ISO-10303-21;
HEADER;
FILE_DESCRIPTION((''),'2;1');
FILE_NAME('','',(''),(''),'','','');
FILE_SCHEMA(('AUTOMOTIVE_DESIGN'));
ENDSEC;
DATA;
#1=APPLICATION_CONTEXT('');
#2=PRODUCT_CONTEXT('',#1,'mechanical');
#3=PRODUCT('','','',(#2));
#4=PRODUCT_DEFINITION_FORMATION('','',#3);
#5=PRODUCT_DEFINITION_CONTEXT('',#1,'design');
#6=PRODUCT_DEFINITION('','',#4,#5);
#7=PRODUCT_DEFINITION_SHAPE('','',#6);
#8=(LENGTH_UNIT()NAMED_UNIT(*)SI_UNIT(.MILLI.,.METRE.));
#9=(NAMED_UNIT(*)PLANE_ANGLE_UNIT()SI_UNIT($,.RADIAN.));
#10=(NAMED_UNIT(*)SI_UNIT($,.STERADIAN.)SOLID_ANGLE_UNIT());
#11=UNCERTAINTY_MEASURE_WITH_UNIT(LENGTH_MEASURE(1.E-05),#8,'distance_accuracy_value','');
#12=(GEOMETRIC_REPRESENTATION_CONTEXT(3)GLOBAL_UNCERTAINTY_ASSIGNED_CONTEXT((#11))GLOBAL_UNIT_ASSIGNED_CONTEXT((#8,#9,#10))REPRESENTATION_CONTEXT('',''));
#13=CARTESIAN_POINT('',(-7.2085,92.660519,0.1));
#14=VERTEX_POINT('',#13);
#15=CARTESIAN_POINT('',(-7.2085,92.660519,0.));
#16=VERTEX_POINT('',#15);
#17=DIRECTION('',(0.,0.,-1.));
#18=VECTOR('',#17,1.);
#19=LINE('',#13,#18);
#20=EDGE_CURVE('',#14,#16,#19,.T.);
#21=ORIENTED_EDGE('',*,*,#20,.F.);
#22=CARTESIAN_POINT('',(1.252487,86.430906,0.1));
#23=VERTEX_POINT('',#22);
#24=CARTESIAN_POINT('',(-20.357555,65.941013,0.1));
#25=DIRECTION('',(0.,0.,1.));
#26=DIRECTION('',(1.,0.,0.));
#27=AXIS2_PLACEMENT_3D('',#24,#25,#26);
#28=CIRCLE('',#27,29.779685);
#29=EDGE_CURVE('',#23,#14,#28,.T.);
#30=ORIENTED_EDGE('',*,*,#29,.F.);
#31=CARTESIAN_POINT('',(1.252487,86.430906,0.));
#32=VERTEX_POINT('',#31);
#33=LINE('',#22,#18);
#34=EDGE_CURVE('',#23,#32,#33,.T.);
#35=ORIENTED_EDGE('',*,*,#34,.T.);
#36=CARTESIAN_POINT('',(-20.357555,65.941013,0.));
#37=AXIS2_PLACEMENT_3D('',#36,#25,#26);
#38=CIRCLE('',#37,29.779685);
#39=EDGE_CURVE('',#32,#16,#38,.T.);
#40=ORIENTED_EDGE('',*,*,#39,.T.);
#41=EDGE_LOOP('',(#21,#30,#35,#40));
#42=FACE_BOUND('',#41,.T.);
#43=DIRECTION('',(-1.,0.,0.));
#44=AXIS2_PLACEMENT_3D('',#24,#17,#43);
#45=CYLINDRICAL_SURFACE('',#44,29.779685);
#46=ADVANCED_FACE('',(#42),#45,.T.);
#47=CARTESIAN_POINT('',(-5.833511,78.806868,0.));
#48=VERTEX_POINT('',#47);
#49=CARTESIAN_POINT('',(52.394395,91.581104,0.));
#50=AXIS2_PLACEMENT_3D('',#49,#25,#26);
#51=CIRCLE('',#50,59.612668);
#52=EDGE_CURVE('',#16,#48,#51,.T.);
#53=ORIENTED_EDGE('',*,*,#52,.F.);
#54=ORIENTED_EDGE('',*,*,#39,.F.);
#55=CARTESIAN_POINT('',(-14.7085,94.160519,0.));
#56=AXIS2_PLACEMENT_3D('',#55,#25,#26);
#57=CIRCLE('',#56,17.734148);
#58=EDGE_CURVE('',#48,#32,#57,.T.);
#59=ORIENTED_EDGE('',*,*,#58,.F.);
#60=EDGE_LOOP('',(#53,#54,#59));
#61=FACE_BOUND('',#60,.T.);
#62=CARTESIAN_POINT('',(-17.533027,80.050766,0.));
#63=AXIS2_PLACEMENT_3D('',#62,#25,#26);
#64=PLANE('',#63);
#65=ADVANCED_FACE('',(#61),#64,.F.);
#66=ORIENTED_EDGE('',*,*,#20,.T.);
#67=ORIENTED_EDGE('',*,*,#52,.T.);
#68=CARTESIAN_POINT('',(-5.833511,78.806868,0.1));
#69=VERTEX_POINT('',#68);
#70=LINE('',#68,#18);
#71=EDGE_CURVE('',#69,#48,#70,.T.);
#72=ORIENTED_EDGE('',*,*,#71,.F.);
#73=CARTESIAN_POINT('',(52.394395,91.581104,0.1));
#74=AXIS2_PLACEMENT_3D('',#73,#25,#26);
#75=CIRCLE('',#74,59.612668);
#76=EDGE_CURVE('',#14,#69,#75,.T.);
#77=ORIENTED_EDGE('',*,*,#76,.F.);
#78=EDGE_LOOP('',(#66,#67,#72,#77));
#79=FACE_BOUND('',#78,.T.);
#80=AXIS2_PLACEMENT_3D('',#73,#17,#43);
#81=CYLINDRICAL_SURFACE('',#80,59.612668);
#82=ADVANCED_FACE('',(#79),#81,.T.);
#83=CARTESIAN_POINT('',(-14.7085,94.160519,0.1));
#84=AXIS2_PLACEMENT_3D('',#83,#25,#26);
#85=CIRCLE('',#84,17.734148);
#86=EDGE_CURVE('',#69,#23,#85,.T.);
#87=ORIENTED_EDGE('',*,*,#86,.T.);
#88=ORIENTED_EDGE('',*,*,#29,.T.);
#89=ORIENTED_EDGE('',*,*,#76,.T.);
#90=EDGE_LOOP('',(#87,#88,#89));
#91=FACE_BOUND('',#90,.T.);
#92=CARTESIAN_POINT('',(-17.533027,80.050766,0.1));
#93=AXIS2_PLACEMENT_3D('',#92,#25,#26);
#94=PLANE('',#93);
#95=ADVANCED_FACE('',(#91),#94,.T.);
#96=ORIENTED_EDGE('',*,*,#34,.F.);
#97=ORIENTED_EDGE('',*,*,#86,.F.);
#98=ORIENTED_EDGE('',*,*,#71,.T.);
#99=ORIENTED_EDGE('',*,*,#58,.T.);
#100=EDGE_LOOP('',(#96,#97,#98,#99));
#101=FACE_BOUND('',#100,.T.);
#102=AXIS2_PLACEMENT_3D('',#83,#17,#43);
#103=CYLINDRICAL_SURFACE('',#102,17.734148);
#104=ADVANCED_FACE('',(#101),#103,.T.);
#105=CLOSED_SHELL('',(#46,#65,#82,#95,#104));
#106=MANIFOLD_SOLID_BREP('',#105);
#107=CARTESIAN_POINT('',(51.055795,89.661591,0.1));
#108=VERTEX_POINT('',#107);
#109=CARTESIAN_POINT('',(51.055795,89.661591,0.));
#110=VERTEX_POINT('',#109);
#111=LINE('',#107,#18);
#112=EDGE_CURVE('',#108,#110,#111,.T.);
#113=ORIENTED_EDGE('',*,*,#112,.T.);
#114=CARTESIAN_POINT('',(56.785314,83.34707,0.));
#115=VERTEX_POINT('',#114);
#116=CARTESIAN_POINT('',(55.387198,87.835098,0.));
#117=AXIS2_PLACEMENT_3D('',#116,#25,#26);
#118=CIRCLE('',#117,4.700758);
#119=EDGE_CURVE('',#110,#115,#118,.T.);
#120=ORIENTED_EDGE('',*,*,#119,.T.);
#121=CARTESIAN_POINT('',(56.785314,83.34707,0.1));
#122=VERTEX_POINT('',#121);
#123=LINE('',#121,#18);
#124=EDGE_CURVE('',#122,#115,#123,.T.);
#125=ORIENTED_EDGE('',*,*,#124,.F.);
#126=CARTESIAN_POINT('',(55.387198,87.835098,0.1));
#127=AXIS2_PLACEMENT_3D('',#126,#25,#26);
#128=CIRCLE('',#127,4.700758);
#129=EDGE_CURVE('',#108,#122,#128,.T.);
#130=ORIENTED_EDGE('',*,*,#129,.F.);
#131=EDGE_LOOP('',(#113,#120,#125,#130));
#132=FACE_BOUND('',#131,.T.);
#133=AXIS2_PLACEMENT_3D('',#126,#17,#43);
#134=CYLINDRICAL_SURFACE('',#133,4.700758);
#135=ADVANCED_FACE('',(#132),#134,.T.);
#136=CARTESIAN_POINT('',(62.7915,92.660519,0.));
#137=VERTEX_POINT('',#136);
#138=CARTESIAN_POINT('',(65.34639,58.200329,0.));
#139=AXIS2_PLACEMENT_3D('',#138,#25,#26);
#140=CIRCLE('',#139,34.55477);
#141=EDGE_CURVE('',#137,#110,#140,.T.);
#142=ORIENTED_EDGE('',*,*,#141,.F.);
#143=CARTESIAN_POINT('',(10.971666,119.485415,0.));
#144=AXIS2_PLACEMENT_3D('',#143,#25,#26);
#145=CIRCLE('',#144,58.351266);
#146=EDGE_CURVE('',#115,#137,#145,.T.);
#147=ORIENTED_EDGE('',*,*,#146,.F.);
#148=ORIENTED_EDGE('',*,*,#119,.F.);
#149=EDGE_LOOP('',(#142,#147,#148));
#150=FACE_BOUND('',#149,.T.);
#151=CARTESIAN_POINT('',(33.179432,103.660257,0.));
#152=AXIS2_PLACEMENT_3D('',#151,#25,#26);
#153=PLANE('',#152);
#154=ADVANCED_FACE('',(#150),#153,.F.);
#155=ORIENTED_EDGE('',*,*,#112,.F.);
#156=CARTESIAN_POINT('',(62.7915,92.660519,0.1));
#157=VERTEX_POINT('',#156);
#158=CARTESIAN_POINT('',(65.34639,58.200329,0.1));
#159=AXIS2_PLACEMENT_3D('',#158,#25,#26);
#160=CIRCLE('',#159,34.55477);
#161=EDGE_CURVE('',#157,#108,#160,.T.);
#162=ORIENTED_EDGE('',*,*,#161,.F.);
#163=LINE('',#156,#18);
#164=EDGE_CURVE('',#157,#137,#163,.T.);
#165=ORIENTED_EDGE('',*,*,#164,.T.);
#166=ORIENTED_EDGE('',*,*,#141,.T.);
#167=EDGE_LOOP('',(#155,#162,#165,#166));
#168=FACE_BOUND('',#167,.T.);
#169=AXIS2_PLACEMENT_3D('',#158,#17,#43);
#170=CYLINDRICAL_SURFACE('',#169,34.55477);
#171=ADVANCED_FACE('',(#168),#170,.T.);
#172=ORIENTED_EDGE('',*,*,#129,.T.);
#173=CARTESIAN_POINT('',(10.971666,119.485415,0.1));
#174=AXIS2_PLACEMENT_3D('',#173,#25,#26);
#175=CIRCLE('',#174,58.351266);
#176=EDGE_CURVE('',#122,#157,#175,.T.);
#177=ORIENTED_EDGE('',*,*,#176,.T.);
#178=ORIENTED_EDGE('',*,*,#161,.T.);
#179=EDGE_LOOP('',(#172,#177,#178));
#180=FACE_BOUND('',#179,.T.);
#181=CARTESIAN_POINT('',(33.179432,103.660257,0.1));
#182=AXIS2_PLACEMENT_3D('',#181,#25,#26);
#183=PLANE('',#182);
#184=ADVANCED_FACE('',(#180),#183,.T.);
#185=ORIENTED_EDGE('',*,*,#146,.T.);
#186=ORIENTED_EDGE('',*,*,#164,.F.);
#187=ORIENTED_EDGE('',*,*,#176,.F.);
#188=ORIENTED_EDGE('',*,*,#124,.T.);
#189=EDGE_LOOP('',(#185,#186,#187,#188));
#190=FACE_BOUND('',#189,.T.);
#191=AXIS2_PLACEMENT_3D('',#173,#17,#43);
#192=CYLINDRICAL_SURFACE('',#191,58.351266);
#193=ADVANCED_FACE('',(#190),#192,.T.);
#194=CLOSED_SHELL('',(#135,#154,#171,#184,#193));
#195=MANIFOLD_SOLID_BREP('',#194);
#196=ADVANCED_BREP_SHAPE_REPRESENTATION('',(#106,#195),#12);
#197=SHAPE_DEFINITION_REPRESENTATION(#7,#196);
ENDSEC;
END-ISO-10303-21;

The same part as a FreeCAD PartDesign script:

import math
import FreeCAD as App
import Part
import Sketcher
Q = App.Units.Quantity

doc = App.newDocument("Part")
body = doc.addObject("PartDesign::Body", "Body")

sketch1 = body.newObject("Sketcher::SketchObject", "Sketch")
sketch1.AttachmentSupport = (doc.getObject("XY_Plane"), [""])
sketch1.MapMode = "FlatFace"
sketch1.addGeometry([
    Part.ArcOfCircle(Part.Circle(App.Vector(11, 119.5, 0), App.Vector(0, 0, 1), 58.4), math.radians(-38.27), math.radians(-27.37)),
    Part.ArcOfCircle(Part.Circle(App.Vector(65.3, 58.2, 0), App.Vector(0, 0, 1), 34.6), math.radians(94), math.radians(114)),
    Part.ArcOfCircle(Part.Circle(App.Vector(55.4, 87.8, 0), App.Vector(0, 0, 1), 4.7), math.radians(157), math.radians(287)),
], False)
sketch1.addConstraint([
    Sketcher.Constraint("Coincident", 0, 2, 1, 1),
    Sketcher.Constraint("Coincident", 1, 2, 2, 1),
    Sketcher.Constraint("Coincident", 2, 2, 0, 1),
    Sketcher.Constraint("Radius", 1, Q("34.55477 mm")),
    Sketcher.Constraint("Radius", 0, Q("58.351266 mm")),
    Sketcher.Constraint("Radius", 2, Q("4.700758 mm")),
    Sketcher.Constraint("DistanceY", -1, 1, 2, 3, Q("87.835098 mm")),
    Sketcher.Constraint("DistanceX", -1, 1, 0, 2, Q("62.7915 mm")),
    Sketcher.Constraint("DistanceX", -1, 1, 1, 3, Q("65.34639 mm")),
    Sketcher.Constraint("DistanceY", -1, 1, 1, 3, Q("58.200329 mm")),
    Sketcher.Constraint("DistanceY", -1, 1, 1, 2, Q("89.661591 mm")),
    Sketcher.Constraint("DistanceY", -1, 1, 2, 2, Q("83.34707 mm")),
])
pad1 = body.newObject("PartDesign::Pad", "Pad")
pad1.Profile = sketch1
pad1.Length = 0.1
body2 = doc.addObject("PartDesign::Body", "Body001")

sketch2 = body2.newObject("Sketcher::SketchObject", "Sketch001")
sketch2.AttachmentSupport = (doc.getObject("XY_Plane001"), [""])
sketch2.MapMode = "FlatFace"
sketch2.addGeometry([
    Part.ArcOfCircle(Part.Circle(App.Vector(-20, 66, 0), App.Vector(0, 0, 1), 30), math.radians(43), math.radians(64)),
    Part.ArcOfCircle(Part.Circle(App.Vector(52, 92, 0), App.Vector(0, 0, 1), 60), math.radians(178.96), math.radians(192.37)),
    Part.ArcOfCircle(Part.Circle(App.Vector(-15, 94, 0), App.Vector(0, 0, 1), 18), math.radians(-60), math.radians(-26)),
], False)
sketch2.addConstraint([
    Sketcher.Constraint("Coincident", 0, 2, 1, 1),
    Sketcher.Constraint("Coincident", 1, 2, 2, 1),
    Sketcher.Constraint("Coincident", 2, 2, 0, 1),
    Sketcher.Constraint("DistanceX", 2, 3, 0, 2, Q("7.5 mm")),
    Sketcher.Constraint("DistanceY", 0, 2, 2, 3, Q("1.5 mm")),
    Sketcher.Constraint("Radius", 1, Q("59.612668 mm")),
    Sketcher.Constraint("Radius", 0, Q("29.779685 mm")),
    Sketcher.Constraint("Radius", 2, Q("17.734148 mm")),
    Sketcher.Constraint("DistanceX", 1, 2, 2, 2, Q("7.085998 mm")),
    Sketcher.Constraint("DistanceX", 2, 3, -1, 1, Q("14.7085 mm")),
    Sketcher.Constraint("DistanceY", -1, 1, 2, 3, Q("94.160519 mm")),
    Sketcher.Constraint("DistanceX", 1, 2, -1, 1, Q("5.833511 mm")),
])
pad2 = body2.newObject("PartDesign::Pad", "Pad001")
pad2.Profile = sketch2
pad2.Length = 0.1

doc.recompute()
